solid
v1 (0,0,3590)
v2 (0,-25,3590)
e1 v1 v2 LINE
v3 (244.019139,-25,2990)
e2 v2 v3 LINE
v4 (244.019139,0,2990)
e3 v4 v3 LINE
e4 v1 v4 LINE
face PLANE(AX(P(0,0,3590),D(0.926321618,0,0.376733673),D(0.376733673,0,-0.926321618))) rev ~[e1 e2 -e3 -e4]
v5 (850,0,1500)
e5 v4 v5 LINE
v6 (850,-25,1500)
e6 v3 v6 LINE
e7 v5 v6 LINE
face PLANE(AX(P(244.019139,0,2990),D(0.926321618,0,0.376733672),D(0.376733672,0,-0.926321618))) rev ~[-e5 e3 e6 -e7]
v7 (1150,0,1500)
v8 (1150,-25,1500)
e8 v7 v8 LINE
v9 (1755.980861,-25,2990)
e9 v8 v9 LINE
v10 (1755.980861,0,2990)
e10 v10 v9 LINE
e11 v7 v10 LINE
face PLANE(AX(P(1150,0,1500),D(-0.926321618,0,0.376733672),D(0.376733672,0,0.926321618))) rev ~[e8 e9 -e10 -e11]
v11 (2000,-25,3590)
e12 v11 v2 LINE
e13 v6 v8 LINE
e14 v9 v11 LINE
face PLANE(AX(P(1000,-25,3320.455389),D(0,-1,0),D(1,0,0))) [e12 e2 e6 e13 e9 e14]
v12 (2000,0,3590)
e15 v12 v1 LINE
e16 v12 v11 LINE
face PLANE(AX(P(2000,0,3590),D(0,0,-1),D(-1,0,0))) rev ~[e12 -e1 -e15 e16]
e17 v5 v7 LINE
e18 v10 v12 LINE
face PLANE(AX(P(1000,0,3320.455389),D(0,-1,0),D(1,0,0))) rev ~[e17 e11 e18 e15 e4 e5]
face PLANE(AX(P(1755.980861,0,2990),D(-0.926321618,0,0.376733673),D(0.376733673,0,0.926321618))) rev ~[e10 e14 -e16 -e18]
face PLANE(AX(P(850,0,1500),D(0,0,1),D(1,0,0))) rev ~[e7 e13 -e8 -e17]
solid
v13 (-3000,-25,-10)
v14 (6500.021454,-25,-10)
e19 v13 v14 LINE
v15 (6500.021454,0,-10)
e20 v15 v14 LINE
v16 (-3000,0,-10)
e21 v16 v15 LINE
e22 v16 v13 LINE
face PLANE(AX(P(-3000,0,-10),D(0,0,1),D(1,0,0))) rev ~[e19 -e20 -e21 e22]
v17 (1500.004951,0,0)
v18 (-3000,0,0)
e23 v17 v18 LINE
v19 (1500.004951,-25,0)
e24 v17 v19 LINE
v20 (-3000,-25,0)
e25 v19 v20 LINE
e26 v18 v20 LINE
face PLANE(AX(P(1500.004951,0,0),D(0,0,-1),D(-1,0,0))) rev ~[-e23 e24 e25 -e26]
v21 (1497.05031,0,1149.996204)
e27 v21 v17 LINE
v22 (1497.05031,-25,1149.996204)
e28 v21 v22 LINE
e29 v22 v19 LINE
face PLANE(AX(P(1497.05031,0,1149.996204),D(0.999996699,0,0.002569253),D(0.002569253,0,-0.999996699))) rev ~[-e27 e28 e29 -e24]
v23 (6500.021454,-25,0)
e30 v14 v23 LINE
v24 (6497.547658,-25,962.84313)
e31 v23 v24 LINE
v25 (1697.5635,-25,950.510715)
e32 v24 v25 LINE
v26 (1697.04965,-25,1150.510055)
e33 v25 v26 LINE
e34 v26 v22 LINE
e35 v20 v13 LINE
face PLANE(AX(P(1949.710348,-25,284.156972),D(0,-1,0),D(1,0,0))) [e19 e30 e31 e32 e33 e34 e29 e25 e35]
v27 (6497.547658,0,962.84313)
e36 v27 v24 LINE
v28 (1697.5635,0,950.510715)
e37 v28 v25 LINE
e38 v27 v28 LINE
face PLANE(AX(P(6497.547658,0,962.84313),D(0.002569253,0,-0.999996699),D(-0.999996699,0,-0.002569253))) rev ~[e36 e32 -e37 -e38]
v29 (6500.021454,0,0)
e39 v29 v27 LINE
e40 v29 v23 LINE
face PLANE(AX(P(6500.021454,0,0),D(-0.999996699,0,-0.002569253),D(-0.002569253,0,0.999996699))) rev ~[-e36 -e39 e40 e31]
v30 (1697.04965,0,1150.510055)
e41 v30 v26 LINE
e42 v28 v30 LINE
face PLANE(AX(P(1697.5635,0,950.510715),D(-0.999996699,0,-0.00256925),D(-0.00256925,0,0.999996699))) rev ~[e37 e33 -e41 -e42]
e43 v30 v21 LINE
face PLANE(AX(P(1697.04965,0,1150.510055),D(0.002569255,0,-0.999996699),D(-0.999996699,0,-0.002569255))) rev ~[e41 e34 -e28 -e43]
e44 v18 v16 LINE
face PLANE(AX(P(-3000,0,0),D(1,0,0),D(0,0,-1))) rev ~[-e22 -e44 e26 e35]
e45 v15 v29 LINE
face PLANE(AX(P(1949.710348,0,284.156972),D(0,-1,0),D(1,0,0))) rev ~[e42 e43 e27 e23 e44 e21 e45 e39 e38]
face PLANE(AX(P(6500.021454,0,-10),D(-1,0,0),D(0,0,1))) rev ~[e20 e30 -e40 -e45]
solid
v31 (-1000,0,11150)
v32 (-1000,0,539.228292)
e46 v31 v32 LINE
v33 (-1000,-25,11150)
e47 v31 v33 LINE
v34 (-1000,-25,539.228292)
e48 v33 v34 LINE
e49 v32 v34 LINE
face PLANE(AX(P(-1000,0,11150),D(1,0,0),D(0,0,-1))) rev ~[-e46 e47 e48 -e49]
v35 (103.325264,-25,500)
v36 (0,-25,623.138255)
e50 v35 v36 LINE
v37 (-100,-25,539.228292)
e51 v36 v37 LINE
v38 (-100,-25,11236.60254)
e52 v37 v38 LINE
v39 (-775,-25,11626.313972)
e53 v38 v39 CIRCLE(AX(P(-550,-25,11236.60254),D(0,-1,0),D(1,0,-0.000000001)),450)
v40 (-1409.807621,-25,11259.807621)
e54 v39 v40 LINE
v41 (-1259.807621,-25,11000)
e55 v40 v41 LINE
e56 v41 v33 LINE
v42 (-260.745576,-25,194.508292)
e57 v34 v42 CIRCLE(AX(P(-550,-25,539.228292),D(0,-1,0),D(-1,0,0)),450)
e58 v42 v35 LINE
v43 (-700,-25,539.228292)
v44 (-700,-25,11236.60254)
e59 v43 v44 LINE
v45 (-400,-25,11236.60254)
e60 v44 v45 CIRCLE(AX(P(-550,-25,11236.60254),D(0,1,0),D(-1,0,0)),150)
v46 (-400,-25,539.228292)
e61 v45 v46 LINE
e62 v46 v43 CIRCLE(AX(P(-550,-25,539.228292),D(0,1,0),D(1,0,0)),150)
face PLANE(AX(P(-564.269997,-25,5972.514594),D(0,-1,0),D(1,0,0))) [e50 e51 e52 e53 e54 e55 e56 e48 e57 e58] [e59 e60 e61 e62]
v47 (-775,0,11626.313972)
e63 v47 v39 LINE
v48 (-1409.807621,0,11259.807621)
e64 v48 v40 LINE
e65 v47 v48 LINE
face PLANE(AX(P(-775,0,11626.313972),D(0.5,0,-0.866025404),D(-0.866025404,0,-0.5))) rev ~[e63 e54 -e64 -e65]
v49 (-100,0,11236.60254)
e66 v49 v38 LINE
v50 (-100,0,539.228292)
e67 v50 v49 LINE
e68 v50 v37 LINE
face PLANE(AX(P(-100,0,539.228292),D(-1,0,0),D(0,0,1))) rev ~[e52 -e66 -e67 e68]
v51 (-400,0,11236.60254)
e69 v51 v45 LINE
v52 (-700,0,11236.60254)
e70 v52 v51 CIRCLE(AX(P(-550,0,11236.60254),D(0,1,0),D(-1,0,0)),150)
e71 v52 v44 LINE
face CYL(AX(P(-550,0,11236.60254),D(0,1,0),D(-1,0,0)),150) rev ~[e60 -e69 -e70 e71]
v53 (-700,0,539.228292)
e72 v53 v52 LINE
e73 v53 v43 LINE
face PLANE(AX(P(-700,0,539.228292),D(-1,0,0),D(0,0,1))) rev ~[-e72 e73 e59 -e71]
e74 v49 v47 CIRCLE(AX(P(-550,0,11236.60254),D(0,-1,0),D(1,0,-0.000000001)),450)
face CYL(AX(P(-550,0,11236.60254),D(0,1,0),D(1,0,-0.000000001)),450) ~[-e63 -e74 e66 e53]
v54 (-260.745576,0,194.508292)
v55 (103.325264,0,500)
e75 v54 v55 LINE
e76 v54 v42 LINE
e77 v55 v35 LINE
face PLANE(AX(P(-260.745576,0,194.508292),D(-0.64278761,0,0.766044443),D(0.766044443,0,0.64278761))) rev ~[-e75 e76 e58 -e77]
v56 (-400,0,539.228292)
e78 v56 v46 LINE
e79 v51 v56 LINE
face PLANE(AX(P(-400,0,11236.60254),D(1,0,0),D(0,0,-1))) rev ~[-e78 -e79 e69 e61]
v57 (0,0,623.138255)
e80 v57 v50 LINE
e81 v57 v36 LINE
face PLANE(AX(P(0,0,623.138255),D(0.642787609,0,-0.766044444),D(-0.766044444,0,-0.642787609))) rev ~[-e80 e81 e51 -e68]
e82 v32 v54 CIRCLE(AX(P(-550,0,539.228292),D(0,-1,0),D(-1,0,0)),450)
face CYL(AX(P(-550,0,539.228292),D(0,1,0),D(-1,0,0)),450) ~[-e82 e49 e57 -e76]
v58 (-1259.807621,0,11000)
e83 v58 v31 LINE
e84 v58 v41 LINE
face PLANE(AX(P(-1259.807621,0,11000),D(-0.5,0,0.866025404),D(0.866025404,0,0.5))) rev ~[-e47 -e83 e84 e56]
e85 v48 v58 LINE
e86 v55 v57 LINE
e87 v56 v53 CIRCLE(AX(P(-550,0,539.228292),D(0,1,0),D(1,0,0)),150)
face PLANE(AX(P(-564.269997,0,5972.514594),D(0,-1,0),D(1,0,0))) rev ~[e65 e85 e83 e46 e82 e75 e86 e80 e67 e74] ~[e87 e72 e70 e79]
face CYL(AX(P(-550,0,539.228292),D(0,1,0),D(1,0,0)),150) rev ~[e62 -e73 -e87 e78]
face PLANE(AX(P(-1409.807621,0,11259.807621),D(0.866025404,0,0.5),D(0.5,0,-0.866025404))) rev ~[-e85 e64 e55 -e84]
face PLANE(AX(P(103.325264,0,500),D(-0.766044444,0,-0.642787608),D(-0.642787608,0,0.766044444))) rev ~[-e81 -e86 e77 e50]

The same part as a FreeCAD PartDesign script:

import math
import FreeCAD as App
import Part
import Sketcher

V = App.Vector
Q = App.Units.Quantity

doc = App.newDocument("Part")
body = doc.addObject("PartDesign::Body", "Body")
body.AllowCompound = True

# Sketch on XZ plane
sketch1 = body.newObject("Sketcher::SketchObject", "Sketch")
sketch1.AttachmentSupport = (doc.getObject("XZ_Plane"), [""])
sketch1.MapMode = "FlatFace"
sketch1.addGeometry(Part.LineSegment(V(2000, 3590, 0), V(0, 3590, 0)), False)
sketch1.addGeometry(Part.LineSegment(V(0, 3590, 0), V(244, 2990, 0)), False)
sketch1.addGeometry(Part.LineSegment(V(244, 2990, 0), V(850, 1500, 0)), False)
sketch1.addGeometry(Part.LineSegment(V(850, 1500, 0), V(1150, 1500, 0)), False)
sketch1.addGeometry(Part.LineSegment(V(1150, 1500, 0), V(1756, 2990, 0)), False)
sketch1.addGeometry(Part.LineSegment(V(1756, 2990, 0), V(2000, 3590, 0)), False)
sketch1.addGeometry(Part.LineSegment(V(1500, 0, 0), V(-3000, 0, 0)), False)
sketch1.addGeometry(Part.LineSegment(V(-3000, 0, 0), V(-3000, -10, 0)), False)
sketch1.addGeometry(Part.LineSegment(V(-3000, -10, 0), V(6500, -10, 0)), False)
sketch1.addGeometry(Part.LineSegment(V(6500, -10, 0), V(6500, 0, 0)), False)
sketch1.addGeometry(Part.LineSegment(V(6500, 0, 0), V(6498, 963, 0)), False)
sketch1.addGeometry(Part.LineSegment(V(6498, 963, 0), V(1698, 951, 0)), False)
sketch1.addGeometry(Part.LineSegment(V(1698, 951, 0), V(1697, 1151, 0)), False)
sketch1.addGeometry(Part.LineSegment(V(1697, 1151, 0), V(1497, 1150, 0)), False)
sketch1.addGeometry(Part.LineSegment(V(1497, 1150, 0), V(1500, 0, 0)), False)
sketch1.addGeometry(Part.LineSegment(V(-100, 539, 0), V(-100, 11237, 0)), False)
sketch1.addGeometry(Part.ArcOfCircle(Part.Circle(V(-550, 11237, 0), V(0, 0, 1), 450), math.radians(0), math.radians(120)), False)
sketch1.addGeometry(Part.LineSegment(V(-775, 11626, 0), V(-1410, 11260, 0)), False)
sketch1.addGeometry(Part.LineSegment(V(-1410, 11260, 0), V(-1260, 11000, 0)), False)
sketch1.addGeometry(Part.LineSegment(V(-1260, 11000, 0), V(-1000, 11150, 0)), False)
sketch1.addGeometry(Part.LineSegment(V(-1000, 11150, 0), V(-1000, 539, 0)), False)
sketch1.addGeometry(Part.ArcOfCircle(Part.Circle(V(-550, 539, 0), V(0, 0, 1), 450), math.radians(-180), math.radians(-50)), False)
sketch1.addGeometry(Part.LineSegment(V(-261, 195, 0), V(103, 500, 0)), False)
sketch1.addGeometry(Part.LineSegment(V(103, 500, 0), V(0, 623, 0)), False)
sketch1.addGeometry(Part.LineSegment(V(0, 623, 0), V(-100, 539, 0)), False)
sketch1.addGeometry(Part.ArcOfCircle(Part.Circle(V(-550, 11237, 0), V(0, 0, 1), 150), math.radians(0), math.radians(180)), False)
sketch1.addGeometry(Part.LineSegment(V(-400, 11237, 0), V(-400, 539, 0)), False)
sketch1.addGeometry(Part.ArcOfCircle(Part.Circle(V(-550, 539, 0), V(0, 0, 1), 150), math.radians(180), math.radians(360)), False)
sketch1.addGeometry(Part.LineSegment(V(-700, 539, 0), V(-700, 11237, 0)), False)
sketch1.addConstraint(Sketcher.Constraint("Coincident", 0, 2, 1, 1))
sketch1.addConstraint(Sketcher.Constraint("Coincident", 1, 2, 2, 1))
sketch1.addConstraint(Sketcher.Constraint("Coincident", 2, 2, 3, 1))
sketch1.addConstraint(Sketcher.Constraint("Coincident", 3, 2, 4, 1))
sketch1.addConstraint(Sketcher.Constraint("Coincident", 4, 2, 5, 1))
sketch1.addConstraint(Sketcher.Constraint("Coincident", 5, 2, 0, 1))
sketch1.addConstraint(Sketcher.Constraint("Coincident", 6, 2, 7, 1))
sketch1.addConstraint(Sketcher.Constraint("Coincident", 7, 2, 8, 1))
sketch1.addConstraint(Sketcher.Constraint("Coincident", 8, 2, 9, 1))
sketch1.addConstraint(Sketcher.Constraint("Coincident", 9, 2, 10, 1))
sketch1.addConstraint(Sketcher.Constraint("Coincident", 10, 2, 11, 1))
sketch1.addConstraint(Sketcher.Constraint("Coincident", 11, 2, 12, 1))
sketch1.addConstraint(Sketcher.Constraint("Coincident", 12, 2, 13, 1))
sketch1.addConstraint(Sketcher.Constraint("Coincident", 13, 2, 14, 1))
sketch1.addConstraint(Sketcher.Constraint("Coincident", 14, 2, 6, 1))
sketch1.addConstraint(Sketcher.Constraint("Tangent", 15, 2, 16, 1))
sketch1.addConstraint(Sketcher.Constraint("Tangent", 16, 2, 17, 1))
sketch1.addConstraint(Sketcher.Constraint("Coincident", 17, 2, 18, 1))
sketch1.addConstraint(Sketcher.Constraint("Coincident", 18, 2, 19, 1))
sketch1.addConstraint(Sketcher.Constraint("Coincident", 19, 2, 20, 1))
sketch1.addConstraint(Sketcher.Constraint("Tangent", 20, 2, 21, 1))
sketch1.addConstraint(Sketcher.Constraint("Tangent", 21, 2, 22, 1))
sketch1.addConstraint(Sketcher.Constraint("Coincident", 22, 2, 23, 1))
sketch1.addConstraint(Sketcher.Constraint("Coincident", 23, 2, 24, 1))
sketch1.addConstraint(Sketcher.Constraint("Coincident", 24, 2, 15, 1))
sketch1.addConstraint(Sketcher.Constraint("Tangent", 25, 1, 26, 1))
sketch1.addConstraint(Sketcher.Constraint("Tangent", 26, 2, 27, 2))
sketch1.addConstraint(Sketcher.Constraint("Tangent", 27, 1, 28, 1))
sketch1.addConstraint(Sketcher.Constraint("Tangent", 28, 2, 25, 2))
sketch1.addConstraint(Sketcher.Constraint("Horizontal", 0))
sketch1.addConstraint(Sketcher.Constraint("Horizontal", 3))
sketch1.addConstraint(Sketcher.Constraint("Horizontal", 6))
sketch1.addConstraint(Sketcher.Constraint("Vertical", 7))
sketch1.addConstraint(Sketcher.Constraint("Horizontal", 8))
sketch1.addConstraint(Sketcher.Constraint("Vertical", 9))
sketch1.addConstraint(Sketcher.Constraint("Vertical", 15))
sketch1.addConstraint(Sketcher.Constraint("Vertical", 20))
sketch1.addConstraint(Sketcher.Constraint("Vertical", 26))
sketch1.addConstraint(Sketcher.Constraint("Vertical", 28))
sketch1.addConstraint(Sketcher.Constraint("Coincident", 25, 3, 16, 3))
sketch1.addConstraint(Sketcher.Constraint("Coincident", 27, 3, 21, 3))
sketch1.addConstraint(Sketcher.Constraint("Equal", 16, 21))
sketch1.addConstraint(Sketcher.Constraint("PointOnObject", 0, 2, -2))
sketch1.addConstraint(Sketcher.Constraint("PointOnObject", 6, 2, -1))
sketch1.addConstraint(Sketcher.Constraint("PointOnObject", 9, 2, -1))
sketch1.addConstraint(Sketcher.Constraint("PointOnObject", 23, 2, -2))
sketch1.addConstraint(Sketcher.Constraint("Parallel", 1, 2))
sketch1.addConstraint(Sketcher.Constraint("Parallel", 4, 5))
sketch1.addConstraint(Sketcher.Constraint("Perpendicular", 10, 11))
sketch1.addConstraint(Sketcher.Constraint("Perpendicular", 11, 12))
sketch1.addConstraint(Sketcher.Constraint("Perpendicular", 12, 13))
sketch1.addConstraint(Sketcher.Constraint("Perpendicular", 13, 14))
sketch1.addConstraint(Sketcher.Constraint("Perpendicular", 17, 18))
sketch1.addConstraint(Sketcher.Constraint("Perpendicular", 18, 19))
sketch1.addConstraint(Sketcher.Constraint("Perpendicular", 22, 23))
sketch1.addConstraint(Sketcher.Constraint("Perpendicular", 23, 24))
sketch1.addConstraint(Sketcher.Constraint("Horizontal", 1, 2, 4, 2))
sketch1.addConstraint(Sketcher.Constraint("Horizontal", 20, 2, 24, 2))
sketch1.addConstraint(Sketcher.Constraint("Equal", 2, 4))
sketch1.addConstraint(Sketcher.Constraint("Equal", 12, 13))
sketch1.addConstraint(Sketcher.Constraint("Equal", 18, 19))
sketch1.addConstraint(Sketcher.Constraint("Radius", 16, Q("450 mm")))
sketch1.addConstraint(Sketcher.Constraint("Radius", 25, Q("150 mm")))
sketch1.addConstraint(Sketcher.Constraint("DistanceX", 0, 2, 0, 1, Q("2000 mm")))
sketch1.addConstraint(Sketcher.Constraint("DistanceX", 3, 1, 3, 2, Q("300 mm")))
sketch1.addConstraint(Sketcher.Constraint("DistanceY", 7, 2, 7, 1, Q("10 mm")))
sketch1.addConstraint(Sketcher.Constraint("Angle", 17, Q("-150 deg")))
sketch1.addConstraint(Sketcher.Constraint("Angle", 22, Q("40 deg")))
sketch1.addConstraint(Sketcher.Constraint("Distance", 11, Q("4800.000001 mm")))
sketch1.addConstraint(Sketcher.Constraint("Distance", 12, Q("200 mm")))
sketch1.addConstraint(Sketcher.Constraint("Distance", 14, Q("1150 mm")))
sketch1.addConstraint(Sketcher.Constraint("Distance", 18, Q("300 mm")))
sketch1.addConstraint(Sketcher.Constraint("DistanceX", 16, 3, -1, 1, Q("550 mm")))
sketch1.addConstraint(Sketcher.Constraint("DistanceY", -1, 1, 0, 2, Q("3590 mm")))
sketch1.addConstraint(Sketcher.Constraint("DistanceY", -1, 1, 1, 2, Q("2990 mm")))
sketch1.addConstraint(Sketcher.Constraint("DistanceY", -1, 1, 2, 2, Q("1500 mm")))
sketch1.addConstraint(Sketcher.Constraint("DistanceX", 6, 2, -1, 1, Q("3000 mm")))
sketch1.addConstraint(Sketcher.Constraint("DistanceY", -1, 1, 18, 2, Q("11000 mm")))
sketch1.addConstraint(Sketcher.Constraint("DistanceY", -1, 1, 22, 2, Q("500 mm")))
sketch1.addConstraint(Sketcher.Constraint("DistanceX", 6, 2, 6, 1, Q("4500.004951 mm")))
sketch1.addConstraint(Sketcher.Constraint("DistanceX", -1, 1, 11, 2, Q("1697.5635 mm")))
pad1 = body.newObject("PartDesign::Pad", "Pad")
pad1.Profile = sketch1
pad1.Length = 25

doc.recompute()
